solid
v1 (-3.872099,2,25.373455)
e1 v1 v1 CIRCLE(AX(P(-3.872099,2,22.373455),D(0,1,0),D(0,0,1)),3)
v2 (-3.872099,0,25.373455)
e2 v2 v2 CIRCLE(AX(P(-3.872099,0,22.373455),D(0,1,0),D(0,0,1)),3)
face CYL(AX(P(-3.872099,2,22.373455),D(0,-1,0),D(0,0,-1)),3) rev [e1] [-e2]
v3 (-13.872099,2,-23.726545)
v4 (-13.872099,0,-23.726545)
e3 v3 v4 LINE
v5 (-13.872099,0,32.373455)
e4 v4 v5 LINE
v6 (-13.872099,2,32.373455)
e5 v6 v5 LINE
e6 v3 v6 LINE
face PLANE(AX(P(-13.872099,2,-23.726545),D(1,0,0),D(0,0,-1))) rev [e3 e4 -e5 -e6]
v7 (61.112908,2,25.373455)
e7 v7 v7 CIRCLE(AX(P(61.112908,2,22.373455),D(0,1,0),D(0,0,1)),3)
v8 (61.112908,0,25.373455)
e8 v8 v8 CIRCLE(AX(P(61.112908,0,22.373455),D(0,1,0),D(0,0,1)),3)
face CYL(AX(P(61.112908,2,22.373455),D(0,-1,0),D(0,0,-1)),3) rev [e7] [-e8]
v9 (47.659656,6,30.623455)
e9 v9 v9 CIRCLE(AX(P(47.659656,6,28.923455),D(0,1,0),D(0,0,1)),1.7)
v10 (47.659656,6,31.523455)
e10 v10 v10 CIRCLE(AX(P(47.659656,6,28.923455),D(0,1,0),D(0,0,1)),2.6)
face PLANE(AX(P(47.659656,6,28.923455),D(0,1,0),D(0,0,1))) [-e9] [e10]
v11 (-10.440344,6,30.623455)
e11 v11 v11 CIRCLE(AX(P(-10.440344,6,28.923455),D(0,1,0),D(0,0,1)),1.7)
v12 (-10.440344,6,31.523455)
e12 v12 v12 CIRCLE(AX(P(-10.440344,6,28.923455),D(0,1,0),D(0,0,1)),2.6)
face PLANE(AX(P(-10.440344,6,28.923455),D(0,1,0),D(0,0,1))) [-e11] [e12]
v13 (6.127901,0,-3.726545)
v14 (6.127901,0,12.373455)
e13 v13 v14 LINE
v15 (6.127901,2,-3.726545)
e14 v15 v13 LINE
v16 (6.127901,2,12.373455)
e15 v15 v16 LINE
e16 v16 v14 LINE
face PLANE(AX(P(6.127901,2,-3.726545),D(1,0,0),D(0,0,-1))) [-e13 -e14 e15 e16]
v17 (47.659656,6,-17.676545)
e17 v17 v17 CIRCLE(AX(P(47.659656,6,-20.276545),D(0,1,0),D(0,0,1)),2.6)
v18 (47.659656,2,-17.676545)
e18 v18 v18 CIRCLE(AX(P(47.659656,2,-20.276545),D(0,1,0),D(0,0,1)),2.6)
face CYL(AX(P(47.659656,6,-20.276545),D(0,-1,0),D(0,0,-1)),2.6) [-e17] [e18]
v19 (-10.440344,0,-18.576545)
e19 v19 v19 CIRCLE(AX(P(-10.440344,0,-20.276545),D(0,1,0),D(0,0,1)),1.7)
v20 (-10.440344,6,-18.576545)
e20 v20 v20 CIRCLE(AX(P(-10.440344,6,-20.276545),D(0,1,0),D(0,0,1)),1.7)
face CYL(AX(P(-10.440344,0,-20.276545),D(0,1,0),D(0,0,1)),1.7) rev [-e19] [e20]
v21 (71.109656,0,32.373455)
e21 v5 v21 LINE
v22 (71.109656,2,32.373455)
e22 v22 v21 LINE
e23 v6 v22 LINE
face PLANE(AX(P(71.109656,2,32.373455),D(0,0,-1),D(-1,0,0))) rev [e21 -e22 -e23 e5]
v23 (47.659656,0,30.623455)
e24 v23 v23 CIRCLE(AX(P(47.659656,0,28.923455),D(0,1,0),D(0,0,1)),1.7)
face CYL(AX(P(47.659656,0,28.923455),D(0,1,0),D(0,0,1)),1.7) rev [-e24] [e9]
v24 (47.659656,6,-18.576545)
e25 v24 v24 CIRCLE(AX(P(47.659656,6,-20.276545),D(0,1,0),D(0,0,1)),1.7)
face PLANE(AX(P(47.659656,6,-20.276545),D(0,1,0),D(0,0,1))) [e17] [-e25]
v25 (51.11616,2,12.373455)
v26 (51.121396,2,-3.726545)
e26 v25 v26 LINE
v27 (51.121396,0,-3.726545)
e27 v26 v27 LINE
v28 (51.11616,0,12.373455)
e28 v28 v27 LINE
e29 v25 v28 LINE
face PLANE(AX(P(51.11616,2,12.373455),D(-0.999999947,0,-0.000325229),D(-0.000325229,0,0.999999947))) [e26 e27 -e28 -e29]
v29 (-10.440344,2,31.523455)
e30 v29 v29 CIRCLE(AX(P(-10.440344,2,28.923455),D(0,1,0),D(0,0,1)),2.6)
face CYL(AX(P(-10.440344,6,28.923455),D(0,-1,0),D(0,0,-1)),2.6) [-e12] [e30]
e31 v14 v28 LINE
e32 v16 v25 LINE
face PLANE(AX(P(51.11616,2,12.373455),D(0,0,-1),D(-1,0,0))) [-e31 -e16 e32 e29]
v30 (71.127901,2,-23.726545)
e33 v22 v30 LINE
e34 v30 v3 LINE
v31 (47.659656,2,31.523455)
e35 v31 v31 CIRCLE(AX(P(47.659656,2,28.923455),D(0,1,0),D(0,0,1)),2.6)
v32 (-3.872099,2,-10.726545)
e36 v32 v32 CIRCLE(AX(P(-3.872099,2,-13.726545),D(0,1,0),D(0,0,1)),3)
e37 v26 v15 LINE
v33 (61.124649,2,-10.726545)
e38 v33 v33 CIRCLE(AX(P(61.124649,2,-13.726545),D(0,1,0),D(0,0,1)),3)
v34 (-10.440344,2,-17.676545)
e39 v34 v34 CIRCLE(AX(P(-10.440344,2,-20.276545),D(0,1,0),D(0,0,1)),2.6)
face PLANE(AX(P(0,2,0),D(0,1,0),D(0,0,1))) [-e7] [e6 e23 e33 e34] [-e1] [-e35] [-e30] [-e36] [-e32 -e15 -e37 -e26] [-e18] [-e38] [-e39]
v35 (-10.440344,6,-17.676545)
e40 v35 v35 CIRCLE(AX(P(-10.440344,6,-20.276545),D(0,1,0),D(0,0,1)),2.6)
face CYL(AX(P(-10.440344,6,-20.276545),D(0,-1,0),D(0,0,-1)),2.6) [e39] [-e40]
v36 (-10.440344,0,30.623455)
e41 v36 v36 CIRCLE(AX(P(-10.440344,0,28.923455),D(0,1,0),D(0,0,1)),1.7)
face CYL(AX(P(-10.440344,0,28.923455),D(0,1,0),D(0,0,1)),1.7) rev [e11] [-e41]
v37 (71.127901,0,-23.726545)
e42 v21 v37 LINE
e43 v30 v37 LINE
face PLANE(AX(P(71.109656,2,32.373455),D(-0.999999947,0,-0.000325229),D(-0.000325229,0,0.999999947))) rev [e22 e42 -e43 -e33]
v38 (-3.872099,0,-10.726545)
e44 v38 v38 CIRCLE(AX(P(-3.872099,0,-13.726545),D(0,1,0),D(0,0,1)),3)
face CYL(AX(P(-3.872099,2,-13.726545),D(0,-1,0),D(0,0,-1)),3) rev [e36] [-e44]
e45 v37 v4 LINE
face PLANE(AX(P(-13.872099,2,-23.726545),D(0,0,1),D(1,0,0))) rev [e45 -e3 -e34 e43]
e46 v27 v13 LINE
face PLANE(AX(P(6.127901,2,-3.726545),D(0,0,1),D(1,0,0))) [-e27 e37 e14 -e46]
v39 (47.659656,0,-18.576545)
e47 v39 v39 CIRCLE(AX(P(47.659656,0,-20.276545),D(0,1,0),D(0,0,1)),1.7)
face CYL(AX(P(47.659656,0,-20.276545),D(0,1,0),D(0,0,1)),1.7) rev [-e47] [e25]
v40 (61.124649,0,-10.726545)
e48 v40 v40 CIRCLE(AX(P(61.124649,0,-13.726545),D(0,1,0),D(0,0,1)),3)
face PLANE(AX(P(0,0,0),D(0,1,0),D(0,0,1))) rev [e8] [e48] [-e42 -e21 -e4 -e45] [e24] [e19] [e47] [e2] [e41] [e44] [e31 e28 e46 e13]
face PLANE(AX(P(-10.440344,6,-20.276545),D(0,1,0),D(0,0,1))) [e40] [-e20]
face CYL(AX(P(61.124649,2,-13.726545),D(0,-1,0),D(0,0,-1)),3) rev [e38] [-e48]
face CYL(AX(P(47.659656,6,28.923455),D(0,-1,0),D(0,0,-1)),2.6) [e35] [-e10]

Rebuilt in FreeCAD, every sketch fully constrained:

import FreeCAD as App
import Part
import Sketcher
from FreeCAD import Vector

doc = App.newDocument("Part")
body = doc.addObject("PartDesign::Body", "Body")

# Sketch on XZ plane
sketch1 = body.newObject("Sketcher::SketchObject", "Sketch")
sketch1.AttachmentSupport = (doc.getObject("XZ_Plane"), [""])
sketch1.MapMode = "FlatFace"
sketch1.addGeometry(Part.LineSegment(Vector(71, -24, 0), Vector(-14, -24, 0)), False)
sketch1.addGeometry(Part.LineSegment(Vector(-14, -24, 0), Vector(-14, 32, 0)), False)
sketch1.addGeometry(Part.LineSegment(Vector(-14, 32, 0), Vector(71, 32, 0)), False)
sketch1.addGeometry(Part.LineSegment(Vector(71, 32, 0), Vector(71, -24, 0)), False)
sketch1.addConstraint(Sketcher.Constraint("Coincident", 0, 2, 1, 1))
sketch1.addConstraint(Sketcher.Constraint("Coincident", 1, 2, 2, 1))
sketch1.addConstraint(Sketcher.Constraint("Coincident", 2, 2, 3, 1))
sketch1.addConstraint(Sketcher.Constraint("Coincident", 3, 2, 0, 1))
sketch1.addConstraint(Sketcher.Constraint("Horizontal", 0))
sketch1.addConstraint(Sketcher.Constraint("Vertical", 1))
sketch1.addConstraint(Sketcher.Constraint("Horizontal", 2))
sketch1.addConstraint(Sketcher.Constraint("DistanceX", 0, 2, 0, 1, 85.0))
sketch1.addConstraint(Sketcher.Constraint("DistanceY", 1, 1, 1, 2, 56.1))
sketch1.addConstraint(Sketcher.Constraint("DistanceX", 0, 2, -1, 1, 13.872099))
sketch1.addConstraint(Sketcher.Constraint("DistanceX", 2, 1, 2, 2, 84.981755))
sketch1.addConstraint(Sketcher.Constraint("DistanceY", 0, 2, -1, 1, 23.726545))
pad1 = body.newObject("PartDesign::Pad", "Pad")
pad1.Profile = sketch1
pad1.Length = 2
pad1.Reversed = True

# Sketch on XZ plane
sketch2 = body.newObject("Sketcher::SketchObject", "Sketch001")
sketch2.AttachmentSupport = (doc.getObject("XZ_Plane"), [""])
sketch2.MapMode = "FlatFace"
sketch2.addGeometry(Part.LineSegment(Vector(51, -4, 0), Vector(6, -4, 0)), False)
sketch2.addGeometry(Part.LineSegment(Vector(6, -4, 0), Vector(6, 12, 0)), False)
sketch2.addGeometry(Part.LineSegment(Vector(6, 12, 0), Vector(51, 12, 0)), False)
sketch2.addGeometry(Part.LineSegment(Vector(51, 12, 0), Vector(51, -4, 0)), False)
sketch2.addConstraint(Sketcher.Constraint("Coincident", 0, 2, 1, 1))
sketch2.addConstraint(Sketcher.Constraint("Coincident", 1, 2, 2, 1))
sketch2.addConstraint(Sketcher.Constraint("Coincident", 2, 2, 3, 1))
sketch2.addConstraint(Sketcher.Constraint("Coincident", 3, 2, 0, 1))
sketch2.addConstraint(Sketcher.Constraint("Horizontal", 0))
sketch2.addConstraint(Sketcher.Constraint("Vertical", 1))
sketch2.addConstraint(Sketcher.Constraint("Horizontal", 2))
sketch2.addConstraint(Sketcher.Constraint("DistanceY", 1, 1, 1, 2, 16.1))
sketch2.addConstraint(Sketcher.Constraint("DistanceX", 2, 1, 2, 2, 44.988258))
sketch2.addConstraint(Sketcher.Constraint("DistanceX", -1, 1, 0, 2, 6.127901))
sketch2.addConstraint(Sketcher.Constraint("DistanceX", 0, 2, 0, 1, 44.993494))
sketch2.addConstraint(Sketcher.Constraint("DistanceY", 0, 2, -1, 1, 3.726545))
pocket1 = body.newObject("PartDesign::Pocket", "Pocket")
pocket1.Profile = sketch2
pocket1.Length = 2

# Sketch on XZ plane
sketch3 = body.newObject("Sketcher::SketchObject", "Sketch002")
sketch3.AttachmentSupport = (doc.getObject("XZ_Plane"), [""])
sketch3.MapMode = "FlatFace"
sketch3.addGeometry(Part.Circle(Vector(-3.9, -13.7, 0), Vector(0, 0, 1), 3), False)
sketch3.addGeometry(Part.Circle(Vector(-3.9, 22.4, 0), Vector(0, 0, 1), 3), False)
sketch3.addGeometry(Part.Circle(Vector(61.1, -13.7, 0), Vector(0, 0, 1), 3), False)
sketch3.addGeometry(Part.Circle(Vector(61.1, 22.4, 0), Vector(0, 0, 1), 3), False)
sketch3.addConstraint(Sketcher.Constraint("Equal", 0, 1))
sketch3.addConstraint(Sketcher.Constraint("Equal", 1, 2))
sketch3.addConstraint(Sketcher.Constraint("Equal", 2, 3))
sketch3.addConstraint(Sketcher.Constraint("Horizontal", 0, 3, 2, 3))
sketch3.addConstraint(Sketcher.Constraint("Horizontal", 1, 3, 3, 3))
sketch3.addConstraint(Sketcher.Constraint("Vertical", 0, 3, 1, 3))
sketch3.addConstraint(Sketcher.Constraint("Diameter", 0, 6.0))
sketch3.addConstraint(Sketcher.Constraint("DistanceY", 0, 3, 1, 3, 36.1))
sketch3.addConstraint(Sketcher.Constraint("DistanceX", 0, 3, -1, 1, 3.872099))
sketch3.addConstraint(Sketcher.Constraint("DistanceX", -1, 1, 2, 3, 61.124649))
sketch3.addConstraint(Sketcher.Constraint("DistanceX", 3, 3, 2, 3, 0.011741))
sketch3.addConstraint(Sketcher.Constraint("DistanceY", 0, 3, -1, 1, 13.726545))
pocket2 = body.newObject("PartDesign::Pocket", "Pocket001")
pocket2.Profile = sketch3
pocket2.Length = 2

# Sketch on XZ plane
sketch4 = body.newObject("Sketcher::SketchObject", "Sketch003")
sketch4.AttachmentSupport = (doc.getObject("XZ_Plane"), [""])
sketch4.MapMode = "FlatFace"
sketch4.AttachmentOffset = App.Placement(Vector(0, 0, -2), App.Rotation())
sketch4.addGeometry(Part.Circle(Vector(-10.4, -20.3, 0), Vector(0, 0, 1), 2.6), False)
sketch4.addGeometry(Part.Circle(Vector(47.7, -20.3, 0), Vector(0, 0, 1), 2.6), False)
sketch4.addGeometry(Part.Circle(Vector(-10.4, 28.9, 0), Vector(0, 0, 1), 2.6), False)
sketch4.addGeometry(Part.Circle(Vector(47.7, 28.9, 0), Vector(0, 0, 1), 2.6), False)
sketch4.addConstraint(Sketcher.Constraint("Equal", 0, 1))
sketch4.addConstraint(Sketcher.Constraint("Equal", 1, 2))
sketch4.addConstraint(Sketcher.Constraint("Equal", 2, 3))
sketch4.addConstraint(Sketcher.Constraint("Horizontal", 0, 3, 1, 3))
sketch4.addConstraint(Sketcher.Constraint("Horizontal", 2, 3, 3, 3))
sketch4.addConstraint(Sketcher.Constraint("Vertical", 0, 3, 2, 3))
sketch4.addConstraint(Sketcher.Constraint("Vertical", 1, 3, 3, 3))
sketch4.addConstraint(Sketcher.Constraint("Diameter", 0, 5.2))
sketch4.addConstraint(Sketcher.Constraint("DistanceX", 0, 3, 1, 3, 58.1))
sketch4.addConstraint(Sketcher.Constraint("DistanceY", 0, 3, 2, 3, 49.2))
sketch4.addConstraint(Sketcher.Constraint("DistanceX", 0, 3, -1, 1, 10.440344))
sketch4.addConstraint(Sketcher.Constraint("DistanceY", 0, 3, -1, 1, 20.276545))
pad2 = body.newObject("PartDesign::Pad", "Pad001")
pad2.Profile = sketch4
pad2.Length = 4
pad2.Reversed = True

# Sketch on XZ plane
sketch5 = body.newObject("Sketcher::SketchObject", "Sketch004")
sketch5.AttachmentSupport = (doc.getObject("XZ_Plane"), [""])
sketch5.MapMode = "FlatFace"
sketch5.AttachmentOffset = App.Placement(Vector(0, 0, -6), App.Rotation())
sketch5.addGeometry(Part.Circle(Vector(-10.4, 28.9, 0), Vector(0, 0, 1), 1.7), False)
sketch5.addGeometry(Part.Circle(Vector(-10.4, -20.3, 0), Vector(0, 0, 1), 1.7), False)
sketch5.addGeometry(Part.Circle(Vector(47.7, -20.3, 0), Vector(0, 0, 1), 1.7), False)
sketch5.addGeometry(Part.Circle(Vector(47.7, 28.9, 0), Vector(0, 0, 1), 1.7), False)
sketch5.addConstraint(Sketcher.Constraint("Equal", 0, 1))
sketch5.addConstraint(Sketcher.Constraint("Equal", 1, 2))
sketch5.addConstraint(Sketcher.Constraint("Equal", 2, 3))
sketch5.addConstraint(Sketcher.Constraint("Horizontal", 1, 3, 2, 3))
sketch5.addConstraint(Sketcher.Constraint("Horizontal", 0, 3, 3, 3))
sketch5.addConstraint(Sketcher.Constraint("Vertical", 0, 3, 1, 3))
sketch5.addConstraint(Sketcher.Constraint("Vertical", 2, 3, 3, 3))
sketch5.addConstraint(Sketcher.Constraint("Diameter", 0, 3.4))
sketch5.addConstraint(Sketcher.Constraint("DistanceY", 1, 3, 0, 3, 49.2))
sketch5.addConstraint(Sketcher.Constraint("DistanceX", 1, 3, 2, 3, 58.1))
sketch5.addConstraint(Sketcher.Constraint("DistanceX", 0, 3, -1, 1, 10.440344))
sketch5.addConstraint(Sketcher.Constraint("DistanceY", -1, 1, 0, 3, 28.923455))
pocket3 = body.newObject("PartDesign::Pocket", "Pocket002")
pocket3.Profile = sketch5
pocket3.Length = 6
pocket3.Reversed = True

doc.recompute()
